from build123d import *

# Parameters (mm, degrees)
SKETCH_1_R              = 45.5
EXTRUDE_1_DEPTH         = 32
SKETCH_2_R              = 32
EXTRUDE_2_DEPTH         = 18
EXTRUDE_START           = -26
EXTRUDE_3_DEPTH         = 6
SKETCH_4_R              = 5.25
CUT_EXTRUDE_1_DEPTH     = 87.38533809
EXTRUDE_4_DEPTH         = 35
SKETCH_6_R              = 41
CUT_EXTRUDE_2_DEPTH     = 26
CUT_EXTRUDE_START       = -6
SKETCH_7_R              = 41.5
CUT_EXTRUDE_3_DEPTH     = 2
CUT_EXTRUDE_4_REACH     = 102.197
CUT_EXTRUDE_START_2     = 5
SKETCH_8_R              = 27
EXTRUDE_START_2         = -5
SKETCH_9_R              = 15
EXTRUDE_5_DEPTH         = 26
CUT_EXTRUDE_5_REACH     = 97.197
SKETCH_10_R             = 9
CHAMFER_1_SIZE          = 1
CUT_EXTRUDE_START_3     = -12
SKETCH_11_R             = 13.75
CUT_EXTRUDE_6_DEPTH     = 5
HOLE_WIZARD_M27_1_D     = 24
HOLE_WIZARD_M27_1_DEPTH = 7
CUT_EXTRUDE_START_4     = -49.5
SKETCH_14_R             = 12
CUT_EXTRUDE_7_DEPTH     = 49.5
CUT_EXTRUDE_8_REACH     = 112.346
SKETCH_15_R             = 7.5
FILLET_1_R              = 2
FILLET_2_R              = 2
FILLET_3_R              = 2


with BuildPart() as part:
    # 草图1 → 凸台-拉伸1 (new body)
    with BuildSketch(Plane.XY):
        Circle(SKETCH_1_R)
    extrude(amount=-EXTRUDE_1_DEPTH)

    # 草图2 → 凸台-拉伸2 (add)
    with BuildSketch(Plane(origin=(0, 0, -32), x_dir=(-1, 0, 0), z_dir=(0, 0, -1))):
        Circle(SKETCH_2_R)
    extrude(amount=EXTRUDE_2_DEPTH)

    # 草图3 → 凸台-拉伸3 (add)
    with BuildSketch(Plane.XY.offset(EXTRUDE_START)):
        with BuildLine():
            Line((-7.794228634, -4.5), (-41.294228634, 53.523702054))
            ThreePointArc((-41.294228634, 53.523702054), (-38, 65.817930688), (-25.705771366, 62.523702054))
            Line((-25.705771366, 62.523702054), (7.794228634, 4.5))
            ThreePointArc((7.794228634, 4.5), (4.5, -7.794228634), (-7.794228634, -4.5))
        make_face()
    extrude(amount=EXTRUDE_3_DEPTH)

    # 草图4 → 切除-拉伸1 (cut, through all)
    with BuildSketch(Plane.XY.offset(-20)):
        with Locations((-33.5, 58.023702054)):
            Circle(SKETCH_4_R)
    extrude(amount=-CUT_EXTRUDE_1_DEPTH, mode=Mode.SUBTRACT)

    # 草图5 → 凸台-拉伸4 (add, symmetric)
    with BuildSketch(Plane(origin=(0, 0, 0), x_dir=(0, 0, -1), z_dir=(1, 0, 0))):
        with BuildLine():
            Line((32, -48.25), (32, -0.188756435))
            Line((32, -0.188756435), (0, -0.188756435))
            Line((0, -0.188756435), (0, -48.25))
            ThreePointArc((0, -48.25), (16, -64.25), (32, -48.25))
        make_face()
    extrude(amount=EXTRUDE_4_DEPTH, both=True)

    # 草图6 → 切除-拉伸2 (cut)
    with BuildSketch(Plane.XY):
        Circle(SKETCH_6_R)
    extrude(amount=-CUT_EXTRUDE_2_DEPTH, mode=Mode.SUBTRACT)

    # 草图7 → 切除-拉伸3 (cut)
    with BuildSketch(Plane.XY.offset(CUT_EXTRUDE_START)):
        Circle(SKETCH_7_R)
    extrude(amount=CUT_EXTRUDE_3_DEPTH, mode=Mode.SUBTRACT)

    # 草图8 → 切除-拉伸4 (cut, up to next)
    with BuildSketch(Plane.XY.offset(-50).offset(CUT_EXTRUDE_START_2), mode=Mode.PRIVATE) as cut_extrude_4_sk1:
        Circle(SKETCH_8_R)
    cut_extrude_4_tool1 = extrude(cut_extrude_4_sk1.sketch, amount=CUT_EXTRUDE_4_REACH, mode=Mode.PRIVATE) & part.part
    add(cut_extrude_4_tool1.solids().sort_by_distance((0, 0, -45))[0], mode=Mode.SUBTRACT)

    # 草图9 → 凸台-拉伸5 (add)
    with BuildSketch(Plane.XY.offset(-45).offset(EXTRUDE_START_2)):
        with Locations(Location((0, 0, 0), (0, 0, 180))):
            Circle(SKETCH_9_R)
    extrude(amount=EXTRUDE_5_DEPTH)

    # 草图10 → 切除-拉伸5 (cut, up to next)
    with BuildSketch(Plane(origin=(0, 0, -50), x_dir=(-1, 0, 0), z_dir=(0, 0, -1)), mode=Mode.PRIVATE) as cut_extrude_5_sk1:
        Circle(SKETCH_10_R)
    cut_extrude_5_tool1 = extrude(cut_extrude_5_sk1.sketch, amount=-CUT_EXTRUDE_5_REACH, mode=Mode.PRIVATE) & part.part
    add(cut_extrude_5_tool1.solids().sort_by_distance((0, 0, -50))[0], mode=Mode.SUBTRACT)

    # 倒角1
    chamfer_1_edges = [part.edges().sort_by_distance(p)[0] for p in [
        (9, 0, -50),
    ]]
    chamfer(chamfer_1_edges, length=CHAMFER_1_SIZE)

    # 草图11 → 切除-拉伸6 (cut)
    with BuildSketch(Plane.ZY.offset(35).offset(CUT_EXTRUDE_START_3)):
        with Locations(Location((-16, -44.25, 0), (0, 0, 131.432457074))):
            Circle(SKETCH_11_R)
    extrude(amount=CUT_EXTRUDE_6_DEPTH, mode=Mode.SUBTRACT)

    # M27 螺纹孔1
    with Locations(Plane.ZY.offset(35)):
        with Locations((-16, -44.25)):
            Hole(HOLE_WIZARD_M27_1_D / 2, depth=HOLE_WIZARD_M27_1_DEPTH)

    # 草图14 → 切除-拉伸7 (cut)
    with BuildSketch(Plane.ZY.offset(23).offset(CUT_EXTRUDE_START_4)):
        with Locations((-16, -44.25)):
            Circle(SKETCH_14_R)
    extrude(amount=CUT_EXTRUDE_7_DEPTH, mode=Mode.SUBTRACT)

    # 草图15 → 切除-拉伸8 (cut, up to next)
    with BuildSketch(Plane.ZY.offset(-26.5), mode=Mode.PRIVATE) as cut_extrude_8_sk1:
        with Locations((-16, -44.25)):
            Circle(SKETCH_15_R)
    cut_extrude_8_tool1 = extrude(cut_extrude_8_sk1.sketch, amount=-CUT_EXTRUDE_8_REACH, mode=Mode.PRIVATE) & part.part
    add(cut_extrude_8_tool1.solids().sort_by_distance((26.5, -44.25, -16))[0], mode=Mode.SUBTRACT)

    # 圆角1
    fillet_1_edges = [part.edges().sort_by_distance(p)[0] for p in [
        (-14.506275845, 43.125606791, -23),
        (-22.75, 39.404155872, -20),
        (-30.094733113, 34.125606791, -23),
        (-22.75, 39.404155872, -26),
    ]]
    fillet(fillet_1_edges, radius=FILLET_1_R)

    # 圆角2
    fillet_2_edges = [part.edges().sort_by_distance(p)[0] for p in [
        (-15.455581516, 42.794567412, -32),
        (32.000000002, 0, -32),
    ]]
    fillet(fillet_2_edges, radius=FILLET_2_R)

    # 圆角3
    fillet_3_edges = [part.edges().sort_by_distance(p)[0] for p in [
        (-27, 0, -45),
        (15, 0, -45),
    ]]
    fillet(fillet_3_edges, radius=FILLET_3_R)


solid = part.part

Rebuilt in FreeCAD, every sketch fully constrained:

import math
import FreeCAD as App
import Part
import Sketcher
from FreeCAD import Vector
Q = App.Units.Quantity


def edges_at(feature, points):
    """Names of the edges that pass closest to the given points."""
    edges = feature.Shape.Edges
    near = lambda p: min(range(len(edges)), key=lambda i: edges[i].distToShape(Part.Vertex(*p))[0])
    return sorted({f"Edge{near(p) + 1}" for p in points})

doc = App.newDocument("Part")
body = doc.addObject("PartDesign::Body", "Body")

sketch1 = doc.addObject("Sketcher::SketchObject", "Sketch")
body.addObject(sketch1)
sketch1.AttachmentSupport = (doc.XY_Plane, [""])
sketch1.MapMode = "FlatFace"
sketch1.addGeometry(Part.Circle(Vector(0, 0, 0), Vector(0, 0, 1), 46), False)
sketch1.addConstraint([
    Sketcher.Constraint("Coincident", 0, 3, -1, 1),
    Sketcher.Constraint("Diameter", 0, 91.0),
])
pad1 = doc.addObject("PartDesign::Pad", "Pad")
body.addObject(pad1)
pad1.Profile = sketch1
pad1.Length = 32
pad1.Reversed = True

sketch2 = doc.addObject("Sketcher::SketchObject", "Sketch001")
body.addObject(sketch2)
sketch2.AttachmentSupport = (doc.XY_Plane, [""])
sketch2.MapMode = "FlatFace"
sketch2.AttachmentOffset = App.Placement(Vector(0, 0, -32), App.Rotation())
sketch2.addGeometry(Part.Circle(Vector(0, 0, 0), Vector(0, 0, 1), 32), False)
sketch2.addConstraint([
    Sketcher.Constraint("Coincident", 0, 3, -1, 1),
    Sketcher.Constraint("Diameter", 0, 64.0),
])
pad2 = doc.addObject("PartDesign::Pad", "Pad001")
body.addObject(pad2)
pad2.Profile = sketch2
pad2.Length = 18
pad2.Reversed = True

sketch3 = doc.addObject("Sketcher::SketchObject", "Sketch002")
body.addObject(sketch3)
sketch3.AttachmentSupport = (doc.XY_Plane, [""])
sketch3.MapMode = "FlatFace"
sketch3.AttachmentOffset = App.Placement(Vector(0, 0, -26), App.Rotation())
sketch3.addGeometry([
    Part.LineSegment(Vector(-41, 54, 0), Vector(-8, -4, 0)),
    Part.ArcOfCircle(Part.Circle(Vector(0, 0, 0), Vector(0, 0, 1), 9), math.radians(-150), math.radians(30)),
    Part.LineSegment(Vector(8, 4, 0), Vector(-26, 63, 0)),
    Part.ArcOfCircle(Part.Circle(Vector(-34, 58, 0), Vector(0, 0, 1), 9), math.radians(30), math.radians(210)),
], False)
sketch3.addConstraint([
    Sketcher.Constraint("Tangent", 0, 2, 1, 1),
    Sketcher.Constraint("Tangent", 1, 2, 2, 1),
    Sketcher.Constraint("Tangent", 2, 2, 3, 1),
    Sketcher.Constraint("Tangent", 3, 2, 0, 1),
    Sketcher.Constraint("Coincident", 1, 3, -1, 1),
    Sketcher.Constraint("Equal", 1, 3),
    Sketcher.Constraint("Radius", 1, 9.0),
    Sketcher.Constraint("Angle", 0, Q("-60 deg")),
    Sketcher.Constraint("Distance", 0, 67.0),
])
pad3 = doc.addObject("PartDesign::Pad", "Pad002")
body.addObject(pad3)
pad3.Profile = sketch3
pad3.Length = 6

sketch4 = doc.addObject("Sketcher::SketchObject", "Sketch003")
body.addObject(sketch4)
sketch4.AttachmentSupport = (doc.XY_Plane, [""])
sketch4.MapMode = "FlatFace"
sketch4.AttachmentOffset = App.Placement(Vector(0, 0, -20), App.Rotation())
sketch4.addGeometry(Part.Circle(Vector(-34, 58, 0), Vector(0, 0, 1), 5), False)
sketch4.addConstraint([
    Sketcher.Constraint("Diameter", 0, 10.5),
    Sketcher.Constraint("DistanceX", 0, 3, -1, 1, 33.5),
    Sketcher.Constraint("DistanceY", -1, 1, 0, 3, 58.023702),
])
pocket1 = doc.addObject("PartDesign::Pocket", "Pocket")
body.addObject(pocket1)
pocket1.Profile = sketch4
pocket1.Type = "ThroughAll"

sketch5 = doc.addObject("Sketcher::SketchObject", "Sketch004")
body.addObject(sketch5)
sketch5.AttachmentSupport = (doc.YZ_Plane, [""])
sketch5.MapMode = "FlatFace"
sketch5.addGeometry([
    Part.LineSegment(Vector(-48, -32, 0), Vector(0, -32, 0)),
    Part.LineSegment(Vector(0, -32, 0), Vector(0, 0, 0)),
    Part.LineSegment(Vector(0, 0, 0), Vector(-48, 0, 0)),
    Part.ArcOfCircle(Part.Circle(Vector(-48, -16, 0), Vector(0, 0, 1), 16), math.radians(90), math.radians(270)),
], False)
sketch5.addConstraint([
    Sketcher.Constraint("Coincident", 0, 2, 1, 1),
    Sketcher.Constraint("Coincident", 1, 2, 2, 1),
    Sketcher.Constraint("Tangent", 2, 2, 3, 1),
    Sketcher.Constraint("Tangent", 3, 2, 0, 1),
    Sketcher.Constraint("Horizontal", 0),
    Sketcher.Constraint("Vertical", 1),
    Sketcher.Constraint("Horizontal", 2),
    Sketcher.Constraint("PointOnObject", 1, 2, -1),
    Sketcher.Constraint("Radius", 3, 16.0),
    Sketcher.Constraint("DistanceX", 3, 3, -1, 1, 48.25),
    Sketcher.Constraint("DistanceX", 0, 1, 0, 2, 48.061244),
])
pad4 = doc.addObject("PartDesign::Pad", "Pad003")
body.addObject(pad4)
pad4.Profile = sketch5
pad4.Length = 70
pad4.Midplane = True

sketch6 = doc.addObject("Sketcher::SketchObject", "Sketch005")
body.addObject(sketch6)
sketch6.AttachmentSupport = (doc.XY_Plane, [""])
sketch6.MapMode = "FlatFace"
sketch6.addGeometry(Part.Circle(Vector(0, 0, 0), Vector(0, 0, 1), 41), False)
sketch6.addConstraint([
    Sketcher.Constraint("Coincident", 0, 3, -1, 1),
    Sketcher.Constraint("Diameter", 0, 82.0),
])
pocket2 = doc.addObject("PartDesign::Pocket", "Pocket001")
body.addObject(pocket2)
pocket2.Profile = sketch6
pocket2.Length = 26

sketch7 = doc.addObject("Sketcher::SketchObject", "Sketch006")
body.addObject(sketch7)
sketch7.AttachmentSupport = (doc.XY_Plane, [""])
sketch7.MapMode = "FlatFace"
sketch7.AttachmentOffset = App.Placement(Vector(0, 0, -6), App.Rotation())
sketch7.addGeometry(Part.Circle(Vector(0, 0, 0), Vector(0, 0, 1), 42), False)
sketch7.addConstraint([
    Sketcher.Constraint("Coincident", 0, 3, -1, 1),
    Sketcher.Constraint("Diameter", 0, 83.0),
])
pocket3 = doc.addObject("PartDesign::Pocket", "Pocket002")
body.addObject(pocket3)
pocket3.Profile = sketch7
pocket3.Length = 2
pocket3.Reversed = True

sketch8 = doc.addObject("Sketcher::SketchObject", "Sketch007")
body.addObject(sketch8)
sketch8.AttachmentSupport = (doc.XY_Plane, [""])
sketch8.MapMode = "FlatFace"
sketch8.AttachmentOffset = App.Placement(Vector(0, 0, -45), App.Rotation())
sketch8.addGeometry(Part.Circle(Vector(0, 0, 0), Vector(0, 0, 1), 27), False)
sketch8.addConstraint([
    Sketcher.Constraint("Coincident", 0, 3, -1, 1),
    Sketcher.Constraint("Diameter", 0, 54.0),
])
pocket4 = doc.addObject("PartDesign::Pocket", "Pocket003")
body.addObject(pocket4)
pocket4.Profile = sketch8
pocket4.Type = "UpToFirst"
pocket4.Reversed = True

sketch9 = doc.addObject("Sketcher::SketchObject", "Sketch008")
body.addObject(sketch9)
sketch9.AttachmentSupport = (doc.XY_Plane, [""])
sketch9.MapMode = "FlatFace"
sketch9.AttachmentOffset = App.Placement(Vector(0, 0, -50), App.Rotation())
sketch9.addGeometry(Part.Circle(Vector(0, 0, 0), Vector(0, 0, 1), 15), False)
sketch9.addConstraint([
    Sketcher.Constraint("Coincident", 0, 3, -1, 1),
    Sketcher.Constraint("Diameter", 0, 30.0),
])
pad5 = doc.addObject("PartDesign::Pad", "Pad004")
body.addObject(pad5)
pad5.Profile = sketch9
pad5.Length = 26

sketch10 = doc.addObject("Sketcher::SketchObject", "Sketch009")
body.addObject(sketch10)
sketch10.AttachmentSupport = (doc.XY_Plane, [""])
sketch10.MapMode = "FlatFace"
sketch10.AttachmentOffset = App.Placement(Vector(0, 0, -50), App.Rotation())
sketch10.addGeometry(Part.Circle(Vector(0, 0, 0), Vector(0, 0, 1), 9), False)
sketch10.addConstraint([
    Sketcher.Constraint("Coincident", 0, 3, -1, 1),
    Sketcher.Constraint("Diameter", 0, 18.0),
])
pocket5 = doc.addObject("PartDesign::Pocket", "Pocket004")
body.addObject(pocket5)
pocket5.Profile = sketch10
pocket5.Type = "UpToFirst"
pocket5.Reversed = True
doc.recompute()

chamfer = doc.addObject("PartDesign::Chamfer", "Chamfer")
body.addObject(chamfer)
chamfer.Base = (pocket5, edges_at(pocket5, [(9, 0, -50)]))
chamfer.Size = 1

sketch11 = doc.addObject("Sketcher::SketchObject", "Sketch010")
body.addObject(sketch11)
sketch11.AttachmentSupport = (doc.YZ_Plane, [""])
sketch11.MapMode = "FlatFace"
sketch11.AttachmentOffset = App.Placement(Vector(0, 0, -23), App.Rotation())
sketch11.addGeometry(Part.Circle(Vector(-44, -16, 0), Vector(0, 0, 1), 14), False)
sketch11.addConstraint([
    Sketcher.Constraint("Diameter", 0, 27.5),
    Sketcher.Constraint("DistanceY", 0, 3, -1, 1, 16.0),
    Sketcher.Constraint("DistanceX", 0, 3, -1, 1, 44.25),
])
pocket6 = doc.addObject("PartDesign::Pocket", "Pocket005")
body.addObject(pocket6)
pocket6.Profile = sketch11
pocket6.Length = 5

sketch12 = doc.addObject("Sketcher::SketchObject", "Sketch011")
body.addObject(sketch12)
sketch12.AttachmentSupport = (doc.YZ_Plane, [""])
sketch12.MapMode = "FlatFace"
sketch12.AttachmentOffset = App.Placement(Vector(0, 0, -35), App.Rotation())
sketch12.addGeometry(Part.Circle(Vector(-44, -16, 0), Vector(0, 0, 1), 12), False)
sketch12.addConstraint([
    Sketcher.Constraint("Diameter", 0, 24.0),
    Sketcher.Constraint("DistanceY", 0, 3, -1, 1, 16.0),
    Sketcher.Constraint("DistanceX", 0, 3, -1, 1, 44.25),
])
doc.recompute()
hole = doc.addObject("PartDesign::Hole", "Hole")
body.addObject(hole)
hole.Profile = sketch12
hole.ThreadType = "None"
hole.Diameter = 24
hole.DepthType = "Dimension"
hole.Depth = 7
hole.DrillPoint = "Flat"
hole.Reversed = True

sketch13 = doc.addObject("Sketcher::SketchObject", "Sketch012")
body.addObject(sketch13)
sketch13.AttachmentSupport = (doc.YZ_Plane, [""])
sketch13.MapMode = "FlatFace"
sketch13.AttachmentOffset = App.Placement(Vector(0, 0, 26.5), App.Rotation())
sketch13.addGeometry(Part.Circle(Vector(-44, -16, 0), Vector(0, 0, 1), 12), False)
sketch13.addConstraint([
    Sketcher.Constraint("Diameter", 0, 24.0),
    Sketcher.Constraint("DistanceY", 0, 3, -1, 1, 16.0),
    Sketcher.Constraint("DistanceX", 0, 3, -1, 1, 44.25),
])
pocket7 = doc.addObject("PartDesign::Pocket", "Pocket006")
body.addObject(pocket7)
pocket7.Profile = sketch13
pocket7.Length = 49.5

sketch14 = doc.addObject("Sketcher::SketchObject", "Sketch013")
body.addObject(sketch14)
sketch14.AttachmentSupport = (doc.YZ_Plane, [""])
sketch14.MapMode = "FlatFace"
sketch14.AttachmentOffset = App.Placement(Vector(0, 0, 26.5), App.Rotation())
sketch14.addGeometry(Part.Circle(Vector(-44, -16, 0), Vector(0, 0, 1), 8), False)
sketch14.addConstraint([
    Sketcher.Constraint("Diameter", 0, 15.0),
    Sketcher.Constraint("DistanceY", 0, 3, -1, 1, 16.0),
    Sketcher.Constraint("DistanceX", 0, 3, -1, 1, 44.25),
])
pocket8 = doc.addObject("PartDesign::Pocket", "Pocket007")
body.addObject(pocket8)
pocket8.Profile = sketch14
pocket8.Type = "UpToFirst"
pocket8.Reversed = True
doc.recompute()

fillet = doc.addObject("PartDesign::Fillet", "Fillet")
body.addObject(fillet)
fillet.Base = (pocket8, edges_at(pocket8, [
    (-14.506, 43.126, -23),
    (-22.75, 39.404, -20),
    (-30.095, 34.126, -23),
    (-22.75, 39.404, -26),
]))
fillet.Radius = 2
doc.recompute()

fillet2 = doc.addObject("PartDesign::Fillet", "Fillet001")
body.addObject(fillet2)
fillet2.Base = (fillet, edges_at(fillet, [(-15.456, 42.795, -32), (32, 0, -32)]))
fillet2.Radius = 2
doc.recompute()

fillet3 = doc.addObject("PartDesign::Fillet", "Fillet002")
body.addObject(fillet3)
fillet3.Base = (fillet2, edges_at(fillet2, [(-27, 0, -45), (15, 0, -45)]))
fillet3.Radius = 2

doc.recompute()
